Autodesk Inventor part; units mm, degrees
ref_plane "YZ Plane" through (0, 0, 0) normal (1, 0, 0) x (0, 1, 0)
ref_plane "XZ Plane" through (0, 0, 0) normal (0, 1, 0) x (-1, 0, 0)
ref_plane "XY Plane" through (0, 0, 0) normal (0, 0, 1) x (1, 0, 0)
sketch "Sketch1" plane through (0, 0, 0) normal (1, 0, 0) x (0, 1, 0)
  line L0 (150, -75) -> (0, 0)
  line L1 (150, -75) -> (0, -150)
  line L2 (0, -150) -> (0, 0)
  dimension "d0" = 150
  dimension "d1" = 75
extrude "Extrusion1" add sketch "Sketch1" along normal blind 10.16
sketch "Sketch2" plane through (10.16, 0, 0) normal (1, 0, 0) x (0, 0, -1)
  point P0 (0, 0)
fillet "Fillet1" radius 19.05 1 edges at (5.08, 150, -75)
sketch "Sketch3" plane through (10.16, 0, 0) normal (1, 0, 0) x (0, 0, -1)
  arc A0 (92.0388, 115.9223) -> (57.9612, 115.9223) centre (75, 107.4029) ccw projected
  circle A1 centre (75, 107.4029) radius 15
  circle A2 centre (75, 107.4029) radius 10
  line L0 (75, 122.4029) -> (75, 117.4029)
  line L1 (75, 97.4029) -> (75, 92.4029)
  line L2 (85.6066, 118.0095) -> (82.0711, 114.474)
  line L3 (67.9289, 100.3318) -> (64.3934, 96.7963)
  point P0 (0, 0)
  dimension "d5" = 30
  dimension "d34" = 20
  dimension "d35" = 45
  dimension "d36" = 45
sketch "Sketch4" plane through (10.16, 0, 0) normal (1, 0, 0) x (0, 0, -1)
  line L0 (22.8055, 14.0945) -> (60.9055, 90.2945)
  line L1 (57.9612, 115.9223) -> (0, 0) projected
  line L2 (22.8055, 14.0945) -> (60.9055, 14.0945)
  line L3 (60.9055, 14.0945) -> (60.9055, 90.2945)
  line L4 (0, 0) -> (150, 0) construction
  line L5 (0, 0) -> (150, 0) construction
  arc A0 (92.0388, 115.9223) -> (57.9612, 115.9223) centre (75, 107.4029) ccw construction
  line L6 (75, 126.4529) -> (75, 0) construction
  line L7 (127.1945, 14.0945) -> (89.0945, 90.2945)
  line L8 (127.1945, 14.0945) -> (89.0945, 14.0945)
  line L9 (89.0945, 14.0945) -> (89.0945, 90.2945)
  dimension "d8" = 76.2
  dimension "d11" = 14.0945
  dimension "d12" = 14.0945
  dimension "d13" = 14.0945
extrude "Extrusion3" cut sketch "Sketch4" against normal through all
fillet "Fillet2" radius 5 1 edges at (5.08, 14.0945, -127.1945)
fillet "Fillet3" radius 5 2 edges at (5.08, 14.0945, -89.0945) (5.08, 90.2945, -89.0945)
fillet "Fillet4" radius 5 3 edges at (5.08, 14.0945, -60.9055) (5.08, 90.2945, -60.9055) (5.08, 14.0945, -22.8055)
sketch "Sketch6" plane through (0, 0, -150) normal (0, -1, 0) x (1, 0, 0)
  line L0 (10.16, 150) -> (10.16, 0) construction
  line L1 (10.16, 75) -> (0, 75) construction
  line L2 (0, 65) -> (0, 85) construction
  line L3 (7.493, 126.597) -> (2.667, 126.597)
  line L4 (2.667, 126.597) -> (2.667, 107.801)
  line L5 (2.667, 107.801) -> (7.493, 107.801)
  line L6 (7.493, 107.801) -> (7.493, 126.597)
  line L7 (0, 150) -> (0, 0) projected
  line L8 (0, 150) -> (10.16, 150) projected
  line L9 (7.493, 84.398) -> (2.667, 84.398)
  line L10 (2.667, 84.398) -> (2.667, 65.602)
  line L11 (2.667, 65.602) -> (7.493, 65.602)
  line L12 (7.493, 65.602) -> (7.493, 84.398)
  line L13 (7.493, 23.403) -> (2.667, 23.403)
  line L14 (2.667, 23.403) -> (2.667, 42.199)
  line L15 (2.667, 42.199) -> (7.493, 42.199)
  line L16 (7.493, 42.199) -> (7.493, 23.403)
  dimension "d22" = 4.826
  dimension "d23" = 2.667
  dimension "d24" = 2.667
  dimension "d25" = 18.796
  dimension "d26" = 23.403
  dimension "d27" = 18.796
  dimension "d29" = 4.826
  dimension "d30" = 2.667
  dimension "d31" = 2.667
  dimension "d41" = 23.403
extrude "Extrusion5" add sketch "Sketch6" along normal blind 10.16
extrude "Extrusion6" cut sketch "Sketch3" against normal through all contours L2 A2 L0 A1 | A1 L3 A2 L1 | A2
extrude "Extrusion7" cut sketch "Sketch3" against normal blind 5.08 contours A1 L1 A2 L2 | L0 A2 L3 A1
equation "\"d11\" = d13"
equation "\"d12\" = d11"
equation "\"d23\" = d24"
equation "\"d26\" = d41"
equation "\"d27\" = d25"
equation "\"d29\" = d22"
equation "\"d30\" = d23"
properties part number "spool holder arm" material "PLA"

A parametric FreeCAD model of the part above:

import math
import FreeCAD as App
import Part
import Sketcher
Q = App.Units.Quantity


def edges_at(feature, points):
    """Names of the edges that pass closest to the given points."""
    edges = feature.Shape.Edges
    near = lambda p: min(range(len(edges)), key=lambda i: edges[i].distToShape(Part.Vertex(*p))[0])
    return sorted({f"Edge{near(p) + 1}" for p in points})

doc = App.newDocument("Part")
body = doc.addObject("PartDesign::Body", "Body")

sketch1 = body.newObject("Sketcher::SketchObject", "Sketch")
sketch1.AttachmentSupport = (doc.getObject("YZ_Plane"), [""])
sketch1.MapMode = "FlatFace"
sketch1.addGeometry(Part.LineSegment(App.Vector(0, -150, 0), App.Vector(150, -75, 0)), False)
sketch1.addGeometry(Part.LineSegment(App.Vector(150, -75, 0), App.Vector(0, 0, 0)), False)
sketch1.addGeometry(Part.LineSegment(App.Vector(0, 0, 0), App.Vector(0, -150, 0)), False)
sketch1.addConstraint(Sketcher.Constraint("Coincident", 0, 2, 1, 1))
sketch1.addConstraint(Sketcher.Constraint("Coincident", 1, 2, 2, 1))
sketch1.addConstraint(Sketcher.Constraint("Coincident", 2, 2, 0, 1))
sketch1.addConstraint(Sketcher.Constraint("Vertical", 2))
sketch1.addConstraint(Sketcher.Constraint("Coincident", 1, 2, -1, 1))
sketch1.addConstraint(Sketcher.Constraint("Equal", 0, 1))
sketch1.addConstraint(Sketcher.Constraint("DistanceY", 2, 2, 2, 1, Q("5.9055 in")))
sketch1.addConstraint(Sketcher.Constraint("DistanceX", -1, 1, 0, 2, Q("5.9055 in")))
pad1 = body.newObject("PartDesign::Pad", "Pad")
pad1.Profile = sketch1
pad1.Length = Q("0.4 in")
doc.recompute()

fillet = body.newObject("PartDesign::Fillet", "Fillet")
fillet.Base = (pad1, edges_at(pad1, [(5.08, 150, -75)]))
fillet.Radius = Q("0.75 in")

sketch2 = body.newObject("Sketcher::SketchObject", "Sketch001")
sketch2.AttachmentSupport = (doc.getObject("YZ_Plane"), [""])
sketch2.MapMode = "FlatFace"
sketch2.AttachmentOffset = App.Placement(App.Vector(0, 0, 0.4 * 25.4), App.Rotation())
sketch2.addGeometry(Part.LineSegment(App.Vector(90, -61, 0), App.Vector(14, -23, 0)), False)
sketch2.addGeometry(Part.LineSegment(App.Vector(14, -23, 0), App.Vector(14, -61, 0)), False)
sketch2.addGeometry(Part.LineSegment(App.Vector(14, -61, 0), App.Vector(90, -61, 0)), False)
sketch2.addGeometry(Part.LineSegment(App.Vector(14, -89, 0), App.Vector(14, -127, 0)), False)
sketch2.addGeometry(Part.LineSegment(App.Vector(14, -127, 0), App.Vector(90, -89, 0)), False)
sketch2.addGeometry(Part.LineSegment(App.Vector(90, -89, 0), App.Vector(14, -89, 0)), False)
sketch2.addConstraint(Sketcher.Constraint("Coincident", 0, 2, 1, 1))
sketch2.addConstraint(Sketcher.Constraint("Coincident", 1, 2, 2, 1))
sketch2.addConstraint(Sketcher.Constraint("Coincident", 2, 2, 0, 1))
sketch2.addConstraint(Sketcher.Constraint("Coincident", 3, 2, 4, 1))
sketch2.addConstraint(Sketcher.Constraint("Coincident", 4, 2, 5, 1))
sketch2.addConstraint(Sketcher.Constraint("Coincident", 5, 2, 3, 1))
sketch2.addConstraint(Sketcher.Constraint("Vertical", 1))
sketch2.addConstraint(Sketcher.Constraint("Horizontal", 2))
sketch2.addConstraint(Sketcher.Constraint("Vertical", 3))
sketch2.addConstraint(Sketcher.Constraint("Horizontal", 5))
sketch2.addConstraint(Sketcher.Constraint("Vertical", 1, 2, 3, 2))
sketch2.addConstraint(Sketcher.Constraint("Vertical", 2, 2, 4, 2))
sketch2.addConstraint(Sketcher.Constraint("Equal", 1, 3))
sketch2.addConstraint(Sketcher.Constraint("DistanceX", 2, 1, 2, 2, Q("3 in")))
sketch2.addConstraint(Sketcher.Constraint("DistanceY", 1, 2, 1, 1, Q("1.5 in")))
sketch2.addConstraint(Sketcher.Constraint("DistanceX", -1, 1, 0, 2, Q("0.5549 in")))
sketch2.addConstraint(Sketcher.Constraint("DistanceY", 3, 2, 1, 2, Q("2.6098 in")))
sketch2.addConstraint(Sketcher.Constraint("DistanceY", 0, 2, -1, 1, 22.8055))
pocket1 = body.newObject("PartDesign::Pocket", "Pocket")
pocket1.Profile = sketch2
pocket1.Type = "ThroughAll"
doc.recompute()

fillet2 = body.newObject("PartDesign::Fillet", "Fillet001")
fillet2.Base = (pocket1, edges_at(pocket1, [(5.08, 14.095, -127.195)]))
fillet2.Radius = 5
doc.recompute()

fillet3 = body.newObject("PartDesign::Fillet", "Fillet002")
fillet3.Base = (fillet2, edges_at(fillet2, [(5.08, 14.095, -89.094), (5.08, 90.294, -89.094)]))
fillet3.Radius = 5
doc.recompute()

fillet4 = body.newObject("PartDesign::Fillet", "Fillet003")
fillet4.Base = (fillet3, edges_at(fillet3, [(5.08, 14.095, -60.906), (5.08, 90.294, -60.906), (5.08, 14.095, -22.805)]))
fillet4.Radius = 5

sketch3 = body.newObject("Sketcher::SketchObject", "Sketch002")
sketch3.AttachmentSupport = (doc.getObject("XZ_Plane"), [""])
sketch3.MapMode = "FlatFace"
sketch3.addGeometry(Part.LineSegment(App.Vector(7.5, -42.2, 0), App.Vector(7.5, -23.4, 0)), False)
sketch3.addGeometry(Part.LineSegment(App.Vector(7.5, -23.4, 0), App.Vector(2.7, -23.4, 0)), False)
sketch3.addGeometry(Part.LineSegment(App.Vector(2.7, -23.4, 0), App.Vector(2.7, -42.2, 0)), False)
sketch3.addGeometry(Part.LineSegment(App.Vector(2.7, -42.2, 0), App.Vector(7.5, -42.2, 0)), False)
sketch3.addGeometry(Part.LineSegment(App.Vector(7.5, -84.4, 0), App.Vector(7.5, -65.6, 0)), False)
sketch3.addGeometry(Part.LineSegment(App.Vector(7.5, -65.6, 0), App.Vector(2.7, -65.6, 0)), False)
sketch3.addGeometry(Part.LineSegment(App.Vector(2.7, -65.6, 0), App.Vector(2.7, -84.4, 0)), False)
sketch3.addGeometry(Part.LineSegment(App.Vector(2.7, -84.4, 0), App.Vector(7.5, -84.4, 0)), False)
sketch3.addGeometry(Part.LineSegment(App.Vector(2.7, -126.6, 0), App.Vector(7.5, -126.6, 0)), False)
sketch3.addGeometry(Part.LineSegment(App.Vector(7.5, -126.6, 0), App.Vector(7.5, -107.8, 0)), False)
sketch3.addGeometry(Part.LineSegment(App.Vector(7.5, -107.8, 0), App.Vector(2.7, -107.8, 0)), False)
sketch3.addGeometry(Part.LineSegment(App.Vector(2.7, -107.8, 0), App.Vector(2.7, -126.6, 0)), False)
sketch3.addConstraint(Sketcher.Constraint("Coincident", 0, 2, 1, 1))
sketch3.addConstraint(Sketcher.Constraint("Coincident", 1, 2, 2, 1))
sketch3.addConstraint(Sketcher.Constraint("Coincident", 2, 2, 3, 1))
sketch3.addConstraint(Sketcher.Constraint("Coincident", 3, 2, 0, 1))
sketch3.addConstraint(Sketcher.Constraint("Coincident", 4, 2, 5, 1))
sketch3.addConstraint(Sketcher.Constraint("Coincident", 5, 2, 6, 1))
sketch3.addConstraint(Sketcher.Constraint("Coincident", 6, 2, 7, 1))
sketch3.addConstraint(Sketcher.Constraint("Coincident", 7, 2, 4, 1))
sketch3.addConstraint(Sketcher.Constraint("Coincident", 8, 2, 9, 1))
sketch3.addConstraint(Sketcher.Constraint("Coincident", 9, 2, 10, 1))
sketch3.addConstraint(Sketcher.Constraint("Coincident", 10, 2, 11, 1))
sketch3.addConstraint(Sketcher.Constraint("Coincident", 11, 2, 8, 1))
sketch3.addConstraint(Sketcher.Constraint("Vertical", 0))
sketch3.addConstraint(Sketcher.Constraint("Horizontal", 1))
sketch3.addConstraint(Sketcher.Constraint("Vertical", 2))
sketch3.addConstraint(Sketcher.Constraint("Horizontal", 3))
sketch3.addConstraint(Sketcher.Constraint("Vertical", 4))
sketch3.addConstraint(Sketcher.Constraint("Horizontal", 5))
sketch3.addConstraint(Sketcher.Constraint("Vertical", 6))
sketch3.addConstraint(Sketcher.Constraint("Horizontal", 7))
sketch3.addConstraint(Sketcher.Constraint("Horizontal", 8))
sketch3.addConstraint(Sketcher.Constraint("Vertical", 9))
sketch3.addConstraint(Sketcher.Constraint("Horizontal", 10))
sketch3.addConstraint(Sketcher.Constraint("Vertical", 11))
sketch3.addConstraint(Sketcher.Constraint("Vertical", 3, 2, 4, 2))
sketch3.addConstraint(Sketcher.Constraint("Vertical", 2, 2, 5, 2))
sketch3.addConstraint(Sketcher.Constraint("Vertical", 7, 2, 8, 2))
sketch3.addConstraint(Sketcher.Constraint("Vertical", 6, 2, 10, 2))
sketch3.addConstraint(Sketcher.Constraint("Equal", 2, 4))
sketch3.addConstraint(Sketcher.Constraint("Equal", 6, 9))
sketch3.addConstraint(Sketcher.Constraint("DistanceX", 1, 2, 1, 1, Q("0.19 in")))
sketch3.addConstraint(Sketcher.Constraint("DistanceY", 0, 1, 0, 2, Q("0.74 in")))
sketch3.addConstraint(Sketcher.Constraint("DistanceX", -1, 1, 1, 2, Q("0.105 in")))
sketch3.addConstraint(Sketcher.Constraint("DistanceY", 0, 2, -1, 1, 23.403))
sketch3.addConstraint(Sketcher.Constraint("DistanceY", 4, 2, 3, 2, 23.403))
sketch3.addConstraint(Sketcher.Constraint("DistanceY", 9, 2, 7, 2, 23.403))
pad2 = body.newObject("PartDesign::Pad", "Pad001")
pad2.Profile = sketch3
pad2.Length = Q("0.4 in")

sketch4 = body.newObject("Sketcher::SketchObject", "Sketch003")
sketch4.AttachmentSupport = (doc.getObject("YZ_Plane"), [""])
sketch4.MapMode = "FlatFace"
sketch4.AttachmentOffset = App.Placement(App.Vector(0, 0, 0.4 * 25.4), App.Rotation())
sketch4.addGeometry(Part.LineSegment(App.Vector(114.5, -82.1, 0), App.Vector(118, -85.6, 0)), False)
sketch4.addGeometry(Part.ArcOfCircle(Part.Circle(App.Vector(107.4, -75, 0), App.Vector(0, 0, 1), 15), math.radians(-45), math.radians(0)), False)
sketch4.addGeometry(Part.LineSegment(App.Vector(122.4, -75, 0), App.Vector(117.4, -75, 0)), False)
sketch4.addGeometry(Part.ArcOfCircle(Part.Circle(App.Vector(107.4, -75, 0), App.Vector(0, 0, 1), 10), math.radians(0), math.radians(135)), False)
sketch4.addGeometry(Part.LineSegment(App.Vector(100.3, -67.9, 0), App.Vector(96.8, -64.4, 0)), False)
sketch4.addGeometry(Part.ArcOfCircle(Part.Circle(App.Vector(107.4, -75, 0), App.Vector(0, 0, 1), 15), math.radians(135), math.radians(180)), False)
sketch4.addGeometry(Part.LineSegment(App.Vector(92.4, -75, 0), App.Vector(97.4, -75, 0)), False)
sketch4.addGeometry(Part.ArcOfCircle(Part.Circle(App.Vector(107.4, -75, 0), App.Vector(0, 0, 1), 10), math.radians(180), math.radians(315)), False)
sketch4.addConstraint(Sketcher.Constraint("Coincident", 0, 2, 1, 1))
sketch4.addConstraint(Sketcher.Constraint("Coincident", 1, 2, 2, 1))
sketch4.addConstraint(Sketcher.Constraint("Coincident", 2, 2, 3, 1))
sketch4.addConstraint(Sketcher.Constraint("Coincident", 3, 2, 4, 1))
sketch4.addConstraint(Sketcher.Constraint("Coincident", 4, 2, 5, 1))
sketch4.addConstraint(Sketcher.Constraint("Coincident", 5, 2, 6, 1))
sketch4.addConstraint(Sketcher.Constraint("Coincident", 6, 2, 7, 1))
sketch4.addConstraint(Sketcher.Constraint("Coincident", 7, 2, 0, 1))
sketch4.addConstraint(Sketcher.Constraint("Horizontal", 2))
sketch4.addConstraint(Sketcher.Constraint("Horizontal", 6))
sketch4.addConstraint(Sketcher.Constraint("Coincident", 3, 3, 1, 3))
sketch4.addConstraint(Sketcher.Constraint("Coincident", 5, 3, 1, 3))
sketch4.addConstraint(Sketcher.Constraint("Coincident", 7, 3, 1, 3))
sketch4.addConstraint(Sketcher.Constraint("Equal", 1, 5))
sketch4.addConstraint(Sketcher.Constraint("Equal", 3, 7))
sketch4.addConstraint(Sketcher.Constraint("Parallel", 0, 4))
sketch4.addConstraint(Sketcher.Constraint("Horizontal", 7, 3, 1, 2))
sketch4.addConstraint(Sketcher.Constraint("Horizontal", 2, 2, 5, 2))
sketch4.addConstraint(Sketcher.Constraint("Angle", 0, Q("-45 deg")))
sketch4.addConstraint(Sketcher.Constraint("Radius", 3, Q("0.3937 in")))
sketch4.addConstraint(Sketcher.Constraint("Radius", 1, 15.0))
sketch4.addConstraint(Sketcher.Constraint("DistanceX", -1, 1, 1, 2, Q("4.819 in")))
sketch4.addConstraint(Sketcher.Constraint("DistanceX", 3, 2, 1, 3, Q("0.2784 in")))
sketch4.addConstraint(Sketcher.Constraint("DistanceY", 7, 2, 2, 2, Q("0.2784 in")))
sketch4.addConstraint(Sketcher.Constraint("DistanceY", 1, 3, -1, 1, 75.0))
pocket2 = body.newObject("PartDesign::Pocket", "Pocket001")
pocket2.Profile = sketch4
pocket2.Type = "ThroughAll"

sketch5 = body.newObject("Sketcher::SketchObject", "Sketch004")
sketch5.AttachmentSupport = (doc.getObject("YZ_Plane"), [""])
sketch5.MapMode = "FlatFace"
sketch5.AttachmentOffset = App.Placement(App.Vector(0, 0, 0.4 * 25.4), App.Rotation())
sketch5.addGeometry(Part.ArcOfCircle(Part.Circle(App.Vector(107.4, -75, 0), App.Vector(0, 0, 1), 15), math.radians(180), math.radians(315)), False)
sketch5.addGeometry(Part.LineSegment(App.Vector(118, -85.6, 0), App.Vector(114.5, -82.1, 0)), False)
sketch5.addGeometry(Part.ArcOfCircle(Part.Circle(App.Vector(107.4, -75, 0), App.Vector(0, 0, 1), 10), math.radians(180), math.radians(315)), False)
sketch5.addGeometry(Part.LineSegment(App.Vector(97.4, -75, 0), App.Vector(92.4, -75, 0)), False)
sketch5.addGeometry(Part.LineSegment(App.Vector(117.4, -75, 0), App.Vector(122.4, -75, 0)), False)
sketch5.addGeometry(Part.ArcOfCircle(Part.Circle(App.Vector(107.4, -75, 0), App.Vector(0, 0, 1), 15), math.radians(0), math.radians(135)), False)
sketch5.addGeometry(Part.LineSegment(App.Vector(96.8, -64.4, 0), App.Vector(100.3, -67.9, 0)), False)
sketch5.addGeometry(Part.ArcOfCircle(Part.Circle(App.Vector(107.4, -75, 0), App.Vector(0, 0, 1), 10), math.radians(0), math.radians(135)), False)
sketch5.addConstraint(Sketcher.Constraint("Coincident", 0, 2, 1, 1))
sketch5.addConstraint(Sketcher.Constraint("Coincident", 1, 2, 2, 2))
sketch5.addConstraint(Sketcher.Constraint("Coincident", 2, 1, 3, 1))
sketch5.addConstraint(Sketcher.Constraint("Coincident", 3, 2, 0, 1))
sketch5.addConstraint(Sketcher.Constraint("Coincident", 4, 2, 5, 1))
sketch5.addConstraint(Sketcher.Constraint("Coincident", 5, 2, 6, 1))
sketch5.addConstraint(Sketcher.Constraint("Coincident", 6, 2, 7, 2))
sketch5.addConstraint(Sketcher.Constraint("Coincident", 7, 1, 4, 1))
sketch5.addConstraint(Sketcher.Constraint("Horizontal", 3))
sketch5.addConstraint(Sketcher.Constraint("Horizontal", 4))
sketch5.addConstraint(Sketcher.Constraint("Coincident", 2, 3, 0, 3))
sketch5.addConstraint(Sketcher.Constraint("Coincident", 5, 3, 0, 3))
sketch5.addConstraint(Sketcher.Constraint("Coincident", 7, 3, 0, 3))
sketch5.addConstraint(Sketcher.Constraint("Equal", 0, 5))
sketch5.addConstraint(Sketcher.Constraint("Equal", 2, 7))
sketch5.addConstraint(Sketcher.Constraint("Parallel", 1, 6))
sketch5.addConstraint(Sketcher.Constraint("Horizontal", 7, 3, 2, 1))
sketch5.addConstraint(Sketcher.Constraint("Horizontal", 3, 2, 4, 2))
sketch5.addConstraint(Sketcher.Constraint("Angle", 6, Q("-45 deg")))
sketch5.addConstraint(Sketcher.Constraint("Radius", 2, Q("0.3937 in")))
sketch5.addConstraint(Sketcher.Constraint("Radius", 0, 15.0))
sketch5.addConstraint(Sketcher.Constraint("DistanceX", -1, 1, 4, 2, Q("4.819 in")))
sketch5.addConstraint(Sketcher.Constraint("DistanceX", 0, 3, 1, 2, Q("0.2784 in")))
sketch5.addConstraint(Sketcher.Constraint("DistanceX", 2, 1, 6, 2, Q("0.1153 in")))
sketch5.addConstraint(Sketcher.Constraint("DistanceY", 0, 3, -1, 1, 75.0))
pocket3 = body.newObject("PartDesign::Pocket", "Pocket002")
pocket3.Profile = sketch5
pocket3.Length = Q("0.2 in")

doc.recompute()
